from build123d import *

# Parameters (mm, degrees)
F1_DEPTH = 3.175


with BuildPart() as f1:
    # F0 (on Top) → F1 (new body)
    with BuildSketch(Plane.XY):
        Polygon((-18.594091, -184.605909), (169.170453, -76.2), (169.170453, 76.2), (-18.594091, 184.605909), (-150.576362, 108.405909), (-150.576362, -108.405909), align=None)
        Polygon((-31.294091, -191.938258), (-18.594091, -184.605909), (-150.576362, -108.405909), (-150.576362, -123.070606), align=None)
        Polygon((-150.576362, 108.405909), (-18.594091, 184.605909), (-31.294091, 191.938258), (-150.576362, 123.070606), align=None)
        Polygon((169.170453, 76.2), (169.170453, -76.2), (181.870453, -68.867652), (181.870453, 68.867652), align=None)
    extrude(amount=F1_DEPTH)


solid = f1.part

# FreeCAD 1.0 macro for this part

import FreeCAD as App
import Part
import Sketcher
from FreeCAD import Vector
Q = App.Units.Quantity

doc = App.newDocument("Part")
body = doc.addObject("PartDesign::Body", "Body")

sketch1 = doc.addObject("Sketcher::SketchObject", "Sketch")
body.addObject(sketch1)
sketch1.AttachmentSupport = (doc.XY_Plane, [""])
sketch1.MapMode = "FlatFace"
sketch1.addGeometry([
    Part.LineSegment(Vector(-19, -185, 0), Vector(169, -76, 0)),
    Part.LineSegment(Vector(169, -76, 0), Vector(182, -69, 0)),
    Part.LineSegment(Vector(182, -69, 0), Vector(182, 69, 0)),
    Part.LineSegment(Vector(182, 69, 0), Vector(169, 76, 0)),
    Part.LineSegment(Vector(169, 76, 0), Vector(-19, 185, 0)),
    Part.LineSegment(Vector(-19, 185, 0), Vector(-31, 192, 0)),
    Part.LineSegment(Vector(-31, 192, 0), Vector(-151, 123, 0)),
    Part.LineSegment(Vector(-151, 123, 0), Vector(-151, -123, 0)),
    Part.LineSegment(Vector(-151, -123, 0), Vector(-31, -192, 0)),
    Part.LineSegment(Vector(-31, -192, 0), Vector(-19, -185, 0)),
], False)
sketch1.addConstraint([
    Sketcher.Constraint("Coincident", 0, 2, 1, 1),
    Sketcher.Constraint("Coincident", 1, 2, 2, 1),
    Sketcher.Constraint("Coincident", 2, 2, 3, 1),
    Sketcher.Constraint("Coincident", 3, 2, 4, 1),
    Sketcher.Constraint("Coincident", 4, 2, 5, 1),
    Sketcher.Constraint("Coincident", 5, 2, 6, 1),
    Sketcher.Constraint("Coincident", 6, 2, 7, 1),
    Sketcher.Constraint("Coincident", 7, 2, 8, 1),
    Sketcher.Constraint("Coincident", 8, 2, 9, 1),
    Sketcher.Constraint("Coincident", 9, 2, 0, 1),
    Sketcher.Constraint("Vertical", 2),
    Sketcher.Constraint("Vertical", 7),
    Sketcher.Constraint("Symmetric", 0, 2, 3, 2, -1),
    Sketcher.Constraint("Symmetric", 5, 2, 8, 2, -1),
    Sketcher.Constraint("Symmetric", 4, 2, 9, 2, -1),
    Sketcher.Constraint("Parallel", 0, 1),
    Sketcher.Constraint("Parallel", 3, 4),
    Sketcher.Constraint("Parallel", 4, 5),
    Sketcher.Constraint("Parallel", 1, 6),
    Sketcher.Constraint("Parallel", 5, 8),
    Sketcher.Constraint("Equal", 3, 5),
    Sketcher.Constraint("DistanceY", 0, 2, -1, 1, Q("3 in")),
    Sketcher.Constraint("Angle", 0, Q("30 deg")),
    Sketcher.Constraint("DistanceX", 0, 2, 1, 2, Q("0.5 in")),
    Sketcher.Constraint("DistanceY", 7, 2, 7, 1, Q("246.141212 mm")),
    Sketcher.Constraint("Distance", 0, Q("216.81182 mm")),
    Sketcher.Constraint("DistanceX", 4, 2, -1, 1, Q("18.594091 mm")),
])
pad1 = doc.addObject("PartDesign::Pad", "Pad")
body.addObject(pad1)
pad1.Profile = sketch1
pad1.Length = Q("0.125 in")

doc.recompute()
